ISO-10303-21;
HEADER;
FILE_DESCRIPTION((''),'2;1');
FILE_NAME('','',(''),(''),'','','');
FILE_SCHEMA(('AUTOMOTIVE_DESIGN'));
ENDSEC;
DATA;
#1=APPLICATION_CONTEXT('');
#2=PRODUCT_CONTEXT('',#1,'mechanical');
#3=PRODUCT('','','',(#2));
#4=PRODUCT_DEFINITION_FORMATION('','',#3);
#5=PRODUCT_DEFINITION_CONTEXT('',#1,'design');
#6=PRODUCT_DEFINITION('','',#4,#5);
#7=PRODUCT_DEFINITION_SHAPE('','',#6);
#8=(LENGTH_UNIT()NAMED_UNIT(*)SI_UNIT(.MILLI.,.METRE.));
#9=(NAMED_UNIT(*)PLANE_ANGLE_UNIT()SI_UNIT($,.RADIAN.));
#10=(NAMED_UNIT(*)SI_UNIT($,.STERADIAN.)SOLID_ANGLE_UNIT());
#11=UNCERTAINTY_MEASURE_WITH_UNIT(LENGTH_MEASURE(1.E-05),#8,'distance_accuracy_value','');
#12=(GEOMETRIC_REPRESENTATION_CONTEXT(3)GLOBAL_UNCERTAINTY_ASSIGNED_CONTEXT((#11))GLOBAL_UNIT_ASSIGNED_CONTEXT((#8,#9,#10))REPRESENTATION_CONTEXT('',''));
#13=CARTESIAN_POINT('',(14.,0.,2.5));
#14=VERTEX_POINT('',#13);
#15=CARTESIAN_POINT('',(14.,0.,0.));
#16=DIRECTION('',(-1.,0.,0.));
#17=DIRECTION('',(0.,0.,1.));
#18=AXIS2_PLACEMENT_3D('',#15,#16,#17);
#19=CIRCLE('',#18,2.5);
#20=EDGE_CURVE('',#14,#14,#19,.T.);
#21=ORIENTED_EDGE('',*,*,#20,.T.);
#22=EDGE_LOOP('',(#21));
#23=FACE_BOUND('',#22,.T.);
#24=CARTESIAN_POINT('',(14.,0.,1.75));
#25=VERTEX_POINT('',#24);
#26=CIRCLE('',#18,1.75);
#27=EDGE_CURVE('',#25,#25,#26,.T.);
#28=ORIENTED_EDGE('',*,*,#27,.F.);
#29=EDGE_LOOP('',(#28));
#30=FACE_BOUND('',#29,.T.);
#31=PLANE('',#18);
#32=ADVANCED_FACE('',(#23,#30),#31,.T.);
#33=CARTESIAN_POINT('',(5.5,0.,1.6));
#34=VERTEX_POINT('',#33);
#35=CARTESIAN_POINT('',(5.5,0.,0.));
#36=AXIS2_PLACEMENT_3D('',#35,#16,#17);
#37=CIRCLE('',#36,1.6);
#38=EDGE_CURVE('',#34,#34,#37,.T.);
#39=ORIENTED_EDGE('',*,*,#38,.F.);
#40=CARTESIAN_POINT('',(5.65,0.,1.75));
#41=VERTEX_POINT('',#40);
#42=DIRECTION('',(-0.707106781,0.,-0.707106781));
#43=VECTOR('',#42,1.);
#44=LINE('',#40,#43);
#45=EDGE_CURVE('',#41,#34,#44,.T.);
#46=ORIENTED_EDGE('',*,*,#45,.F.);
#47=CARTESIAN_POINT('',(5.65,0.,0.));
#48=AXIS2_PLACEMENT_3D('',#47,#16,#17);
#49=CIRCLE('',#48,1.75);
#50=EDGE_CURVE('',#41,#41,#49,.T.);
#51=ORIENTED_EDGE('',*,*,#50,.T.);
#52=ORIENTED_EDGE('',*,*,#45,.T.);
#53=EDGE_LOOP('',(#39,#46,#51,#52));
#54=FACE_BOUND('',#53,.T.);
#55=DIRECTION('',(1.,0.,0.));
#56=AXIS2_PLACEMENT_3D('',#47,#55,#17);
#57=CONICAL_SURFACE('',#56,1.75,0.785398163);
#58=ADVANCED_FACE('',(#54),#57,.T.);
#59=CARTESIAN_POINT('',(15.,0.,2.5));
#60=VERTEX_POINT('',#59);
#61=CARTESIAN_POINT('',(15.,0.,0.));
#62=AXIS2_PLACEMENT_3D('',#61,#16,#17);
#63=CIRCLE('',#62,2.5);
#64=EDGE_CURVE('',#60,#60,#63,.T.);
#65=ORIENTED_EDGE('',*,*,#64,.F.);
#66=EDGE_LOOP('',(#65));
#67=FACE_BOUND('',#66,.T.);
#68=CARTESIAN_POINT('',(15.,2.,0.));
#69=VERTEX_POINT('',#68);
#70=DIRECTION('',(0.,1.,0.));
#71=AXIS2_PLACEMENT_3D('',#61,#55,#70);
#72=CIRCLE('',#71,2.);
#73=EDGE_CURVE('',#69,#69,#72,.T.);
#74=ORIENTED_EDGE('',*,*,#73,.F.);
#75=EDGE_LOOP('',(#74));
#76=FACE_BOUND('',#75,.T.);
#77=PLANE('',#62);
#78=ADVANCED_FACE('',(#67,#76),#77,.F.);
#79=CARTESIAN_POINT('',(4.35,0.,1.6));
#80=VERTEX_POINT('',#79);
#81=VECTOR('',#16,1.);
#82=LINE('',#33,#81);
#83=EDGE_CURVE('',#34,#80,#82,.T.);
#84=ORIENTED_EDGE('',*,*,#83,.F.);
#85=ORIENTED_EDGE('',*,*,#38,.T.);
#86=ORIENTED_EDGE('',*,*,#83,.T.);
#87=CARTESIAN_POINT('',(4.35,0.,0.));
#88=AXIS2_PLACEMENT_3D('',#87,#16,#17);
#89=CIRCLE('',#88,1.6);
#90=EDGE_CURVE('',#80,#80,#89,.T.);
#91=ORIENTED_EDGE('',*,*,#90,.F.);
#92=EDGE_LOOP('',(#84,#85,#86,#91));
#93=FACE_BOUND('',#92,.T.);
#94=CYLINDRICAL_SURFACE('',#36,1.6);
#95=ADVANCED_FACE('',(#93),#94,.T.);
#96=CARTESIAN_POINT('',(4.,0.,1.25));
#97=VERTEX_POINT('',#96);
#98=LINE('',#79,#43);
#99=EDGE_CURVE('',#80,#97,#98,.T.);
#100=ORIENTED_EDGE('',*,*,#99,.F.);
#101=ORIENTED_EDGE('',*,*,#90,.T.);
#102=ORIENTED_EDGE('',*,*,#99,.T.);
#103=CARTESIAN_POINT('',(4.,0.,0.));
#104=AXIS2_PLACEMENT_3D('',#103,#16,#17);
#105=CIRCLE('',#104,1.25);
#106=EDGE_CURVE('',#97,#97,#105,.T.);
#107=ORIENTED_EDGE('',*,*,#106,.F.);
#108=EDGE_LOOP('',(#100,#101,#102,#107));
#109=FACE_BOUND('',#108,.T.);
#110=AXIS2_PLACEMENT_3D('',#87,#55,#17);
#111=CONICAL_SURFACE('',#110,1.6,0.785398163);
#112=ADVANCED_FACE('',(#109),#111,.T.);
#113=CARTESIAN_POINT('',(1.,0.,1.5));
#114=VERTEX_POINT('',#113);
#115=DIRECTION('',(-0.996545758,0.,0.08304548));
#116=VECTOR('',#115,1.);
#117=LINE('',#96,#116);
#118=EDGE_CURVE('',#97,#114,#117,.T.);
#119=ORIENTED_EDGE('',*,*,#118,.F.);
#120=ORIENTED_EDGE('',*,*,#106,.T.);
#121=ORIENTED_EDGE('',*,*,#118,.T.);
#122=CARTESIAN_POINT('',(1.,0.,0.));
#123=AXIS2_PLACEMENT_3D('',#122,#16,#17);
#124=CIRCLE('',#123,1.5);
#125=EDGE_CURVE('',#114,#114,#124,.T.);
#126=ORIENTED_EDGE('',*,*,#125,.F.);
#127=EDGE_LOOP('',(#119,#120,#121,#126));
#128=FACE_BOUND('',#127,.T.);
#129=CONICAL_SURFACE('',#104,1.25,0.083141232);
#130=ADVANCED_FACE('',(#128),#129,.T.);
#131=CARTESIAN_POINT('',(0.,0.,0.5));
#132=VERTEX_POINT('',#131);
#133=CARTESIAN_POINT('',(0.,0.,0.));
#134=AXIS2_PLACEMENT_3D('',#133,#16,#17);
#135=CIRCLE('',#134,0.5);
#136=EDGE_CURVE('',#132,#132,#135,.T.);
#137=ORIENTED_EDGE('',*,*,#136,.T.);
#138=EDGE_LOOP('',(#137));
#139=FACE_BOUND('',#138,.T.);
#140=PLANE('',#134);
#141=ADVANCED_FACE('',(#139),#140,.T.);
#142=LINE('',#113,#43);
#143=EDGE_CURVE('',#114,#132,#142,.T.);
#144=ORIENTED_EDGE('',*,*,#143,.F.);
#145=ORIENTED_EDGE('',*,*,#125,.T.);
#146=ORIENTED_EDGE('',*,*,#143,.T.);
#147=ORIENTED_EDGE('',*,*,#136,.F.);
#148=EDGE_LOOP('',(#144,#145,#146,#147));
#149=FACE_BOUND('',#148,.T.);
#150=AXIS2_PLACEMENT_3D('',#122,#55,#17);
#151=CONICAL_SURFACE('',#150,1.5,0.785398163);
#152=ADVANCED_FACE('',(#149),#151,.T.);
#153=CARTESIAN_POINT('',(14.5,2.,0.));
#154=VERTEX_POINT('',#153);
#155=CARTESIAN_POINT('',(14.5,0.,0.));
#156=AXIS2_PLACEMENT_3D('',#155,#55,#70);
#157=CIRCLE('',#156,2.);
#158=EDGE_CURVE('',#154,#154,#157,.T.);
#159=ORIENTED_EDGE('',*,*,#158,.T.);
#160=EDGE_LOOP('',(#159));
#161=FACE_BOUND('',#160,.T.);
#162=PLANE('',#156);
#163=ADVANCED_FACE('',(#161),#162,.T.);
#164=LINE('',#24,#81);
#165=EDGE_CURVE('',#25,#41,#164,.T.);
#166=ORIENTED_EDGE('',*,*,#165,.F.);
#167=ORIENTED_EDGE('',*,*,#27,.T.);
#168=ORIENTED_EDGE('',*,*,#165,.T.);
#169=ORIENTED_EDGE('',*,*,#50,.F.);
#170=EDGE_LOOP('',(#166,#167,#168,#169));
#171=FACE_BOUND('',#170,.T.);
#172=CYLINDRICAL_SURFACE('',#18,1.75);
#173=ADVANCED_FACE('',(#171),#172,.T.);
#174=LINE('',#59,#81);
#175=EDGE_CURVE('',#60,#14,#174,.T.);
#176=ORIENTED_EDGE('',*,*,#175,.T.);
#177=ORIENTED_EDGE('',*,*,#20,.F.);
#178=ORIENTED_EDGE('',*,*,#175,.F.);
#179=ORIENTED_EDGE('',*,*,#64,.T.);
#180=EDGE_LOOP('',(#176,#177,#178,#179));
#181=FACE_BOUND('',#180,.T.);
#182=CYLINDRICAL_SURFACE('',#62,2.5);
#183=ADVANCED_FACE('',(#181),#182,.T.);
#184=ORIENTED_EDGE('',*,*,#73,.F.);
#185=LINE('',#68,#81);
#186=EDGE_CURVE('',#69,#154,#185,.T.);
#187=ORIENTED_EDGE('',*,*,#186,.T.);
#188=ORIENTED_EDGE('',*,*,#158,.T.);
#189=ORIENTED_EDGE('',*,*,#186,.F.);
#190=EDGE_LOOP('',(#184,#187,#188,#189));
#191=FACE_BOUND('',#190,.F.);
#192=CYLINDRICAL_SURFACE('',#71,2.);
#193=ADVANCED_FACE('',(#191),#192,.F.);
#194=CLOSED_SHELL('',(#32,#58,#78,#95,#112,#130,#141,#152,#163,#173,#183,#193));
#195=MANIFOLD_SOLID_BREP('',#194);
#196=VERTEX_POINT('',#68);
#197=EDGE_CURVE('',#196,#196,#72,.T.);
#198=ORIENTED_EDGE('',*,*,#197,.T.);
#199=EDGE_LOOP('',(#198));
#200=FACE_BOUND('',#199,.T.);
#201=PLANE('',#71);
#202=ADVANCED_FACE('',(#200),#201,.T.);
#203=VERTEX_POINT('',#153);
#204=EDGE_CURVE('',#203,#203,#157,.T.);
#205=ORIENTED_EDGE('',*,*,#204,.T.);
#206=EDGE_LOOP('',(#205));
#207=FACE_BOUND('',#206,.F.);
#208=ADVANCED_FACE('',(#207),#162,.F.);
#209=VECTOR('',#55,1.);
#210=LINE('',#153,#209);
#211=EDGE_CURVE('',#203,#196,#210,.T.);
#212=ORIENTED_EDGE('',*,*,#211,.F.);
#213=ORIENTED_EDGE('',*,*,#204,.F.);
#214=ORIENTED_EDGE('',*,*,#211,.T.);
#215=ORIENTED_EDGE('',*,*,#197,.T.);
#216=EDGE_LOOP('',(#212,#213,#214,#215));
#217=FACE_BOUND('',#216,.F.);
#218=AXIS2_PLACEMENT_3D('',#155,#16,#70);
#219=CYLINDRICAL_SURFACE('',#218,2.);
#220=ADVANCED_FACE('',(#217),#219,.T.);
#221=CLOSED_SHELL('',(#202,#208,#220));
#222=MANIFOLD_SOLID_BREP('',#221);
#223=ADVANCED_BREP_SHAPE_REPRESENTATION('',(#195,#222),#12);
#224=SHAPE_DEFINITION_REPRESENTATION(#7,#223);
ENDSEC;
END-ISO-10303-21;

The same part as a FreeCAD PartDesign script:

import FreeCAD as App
import Part
import Sketcher

V = App.Vector
Q = App.Units.Quantity

doc = App.newDocument("Part")
body = doc.addObject("PartDesign::Body", "Body")

# Sketch on XZ plane
sketch1 = body.newObject("Sketcher::SketchObject", "Sketch")
sketch1.AttachmentSupport = (doc.getObject("XZ_Plane"), [""])
sketch1.MapMode = "FlatFace"
sketch1.addGeometry(Part.LineSegment(V(0, 0.5, 0), V(0, 0, 0)), False)
sketch1.addGeometry(Part.LineSegment(V(0, 0, 0), V(15, 0, 0)), False)
sketch1.addGeometry(Part.LineSegment(V(15, 0, 0), V(15, 2.5, 0)), False)
sketch1.addGeometry(Part.LineSegment(V(15, 2.5, 0), V(14, 2.5, 0)), False)
sketch1.addGeometry(Part.LineSegment(V(14, 2.5, 0), V(14, 1.75, 0)), False)
sketch1.addGeometry(Part.LineSegment(V(14, 1.75, 0), V(5.65, 1.75, 0)), False)
sketch1.addGeometry(Part.LineSegment(V(5.65, 1.75, 0), V(5.5, 1.6, 0)), False)
sketch1.addGeometry(Part.LineSegment(V(5.5, 1.6, 0), V(4.35, 1.6, 0)), False)
sketch1.addGeometry(Part.LineSegment(V(4.35, 1.6, 0), V(4, 1.25, 0)), False)
sketch1.addGeometry(Part.LineSegment(V(4, 1.25, 0), V(1, 1.5, 0)), False)
sketch1.addGeometry(Part.LineSegment(V(1, 1.5, 0), V(0, 0.5, 0)), False)
sketch1.addConstraint(Sketcher.Constraint("Coincident", 0, 2, 1, 1))
sketch1.addConstraint(Sketcher.Constraint("Coincident", 1, 2, 2, 1))
sketch1.addConstraint(Sketcher.Constraint("Coincident", 2, 2, 3, 1))
sketch1.addConstraint(Sketcher.Constraint("Coincident", 3, 2, 4, 1))
sketch1.addConstraint(Sketcher.Constraint("Coincident", 4, 2, 5, 1))
sketch1.addConstraint(Sketcher.Constraint("Coincident", 5, 2, 6, 1))
sketch1.addConstraint(Sketcher.Constraint("Coincident", 6, 2, 7, 1))
sketch1.addConstraint(Sketcher.Constraint("Coincident", 7, 2, 8, 1))
sketch1.addConstraint(Sketcher.Constraint("Coincident", 8, 2, 9, 1))
sketch1.addConstraint(Sketcher.Constraint("Coincident", 9, 2, 10, 1))
sketch1.addConstraint(Sketcher.Constraint("Coincident", 10, 2, 0, 1))
sketch1.addConstraint(Sketcher.Constraint("Vertical", 0))
sketch1.addConstraint(Sketcher.Constraint("Horizontal", 1))
sketch1.addConstraint(Sketcher.Constraint("Vertical", 2))
sketch1.addConstraint(Sketcher.Constraint("Horizontal", 3))
sketch1.addConstraint(Sketcher.Constraint("Vertical", 4))
sketch1.addConstraint(Sketcher.Constraint("Horizontal", 5))
sketch1.addConstraint(Sketcher.Constraint("Horizontal", 7))
sketch1.addConstraint(Sketcher.Constraint("Coincident", 0, 2, -1, 1))
sketch1.addConstraint(Sketcher.Constraint("Parallel", 6, 8))
sketch1.addConstraint(Sketcher.Constraint("Parallel", 8, 10))
sketch1.addConstraint(Sketcher.Constraint("DistanceX", 1, 1, 1, 2, Q("15 mm")))
sketch1.addConstraint(Sketcher.Constraint("DistanceX", 3, 2, 3, 1, Q("1 mm")))
sketch1.addConstraint(Sketcher.Constraint("Angle", 6, Q("-135 deg")))
sketch1.addConstraint(Sketcher.Constraint("DistanceY", 0, 2, 0, 1, Q("0.5 mm")))
sketch1.addConstraint(Sketcher.Constraint("DistanceY", 2, 1, 2, 2, Q("2.5 mm")))
sketch1.addConstraint(Sketcher.Constraint("DistanceX", -1, 1, 8, 2, Q("4 mm")))
sketch1.addConstraint(Sketcher.Constraint("DistanceX", -1, 1, 9, 2, Q("1 mm")))
sketch1.addConstraint(Sketcher.Constraint("DistanceX", 5, 2, 5, 1, Q("8.35 mm")))
sketch1.addConstraint(Sketcher.Constraint("DistanceX", 7, 2, 7, 1, Q("1.15 mm")))
sketch1.addConstraint(Sketcher.Constraint("DistanceY", 4, 2, 4, 1, Q("0.75 mm")))
sketch1.addConstraint(Sketcher.Constraint("DistanceX", -1, 1, 6, 2, Q("5.5 mm")))
revolution = body.newObject("PartDesign::Revolution", "Revolution")
revolution.Profile = sketch1
revolution.ReferenceAxis = (sketch1, ["H_Axis"])
revolution.Angle = 360

# Sketch on YZ plane
sketch2 = body.newObject("Sketcher::SketchObject", "Sketch001")
sketch2.AttachmentSupport = (doc.getObject("YZ_Plane"), [""])
sketch2.MapMode = "FlatFace"
sketch2.AttachmentOffset = App.Placement(V(0, 0, 15), App.Rotation())
sketch2.addGeometry(Part.Circle(V(0, 0, 0), V(0, 0, 1), 2), False)
sketch2.addConstraint(Sketcher.Constraint("Coincident", 0, 3, -1, 1))
sketch2.addConstraint(Sketcher.Constraint("Diameter", 0, Q("4 mm")))
pocket1 = body.newObject("PartDesign::Pocket", "Pocket")
pocket1.Profile = sketch2
pocket1.Length = 0.5
body2 = doc.addObject("PartDesign::Body", "Body001")

# Sketch on YZ plane
sketch3 = body2.newObject("Sketcher::SketchObject", "Sketch002")
sketch3.AttachmentSupport = (doc.getObject("YZ_Plane001"), [""])
sketch3.MapMode = "FlatFace"
sketch3.AttachmentOffset = App.Placement(V(0, 0, 14.5), App.Rotation())
sketch3.addGeometry(Part.Circle(V(0, 0, 0), V(0, 0, 1), 2), False)
sketch3.addConstraint(Sketcher.Constraint("Coincident", 0, 3, -1, 1))
sketch3.addConstraint(Sketcher.Constraint("Diameter", 0, Q("4 mm")))
pad1 = body2.newObject("PartDesign::Pad", "Pad")
pad1.Profile = sketch3
pad1.Length = 0.5

doc.recompute()
